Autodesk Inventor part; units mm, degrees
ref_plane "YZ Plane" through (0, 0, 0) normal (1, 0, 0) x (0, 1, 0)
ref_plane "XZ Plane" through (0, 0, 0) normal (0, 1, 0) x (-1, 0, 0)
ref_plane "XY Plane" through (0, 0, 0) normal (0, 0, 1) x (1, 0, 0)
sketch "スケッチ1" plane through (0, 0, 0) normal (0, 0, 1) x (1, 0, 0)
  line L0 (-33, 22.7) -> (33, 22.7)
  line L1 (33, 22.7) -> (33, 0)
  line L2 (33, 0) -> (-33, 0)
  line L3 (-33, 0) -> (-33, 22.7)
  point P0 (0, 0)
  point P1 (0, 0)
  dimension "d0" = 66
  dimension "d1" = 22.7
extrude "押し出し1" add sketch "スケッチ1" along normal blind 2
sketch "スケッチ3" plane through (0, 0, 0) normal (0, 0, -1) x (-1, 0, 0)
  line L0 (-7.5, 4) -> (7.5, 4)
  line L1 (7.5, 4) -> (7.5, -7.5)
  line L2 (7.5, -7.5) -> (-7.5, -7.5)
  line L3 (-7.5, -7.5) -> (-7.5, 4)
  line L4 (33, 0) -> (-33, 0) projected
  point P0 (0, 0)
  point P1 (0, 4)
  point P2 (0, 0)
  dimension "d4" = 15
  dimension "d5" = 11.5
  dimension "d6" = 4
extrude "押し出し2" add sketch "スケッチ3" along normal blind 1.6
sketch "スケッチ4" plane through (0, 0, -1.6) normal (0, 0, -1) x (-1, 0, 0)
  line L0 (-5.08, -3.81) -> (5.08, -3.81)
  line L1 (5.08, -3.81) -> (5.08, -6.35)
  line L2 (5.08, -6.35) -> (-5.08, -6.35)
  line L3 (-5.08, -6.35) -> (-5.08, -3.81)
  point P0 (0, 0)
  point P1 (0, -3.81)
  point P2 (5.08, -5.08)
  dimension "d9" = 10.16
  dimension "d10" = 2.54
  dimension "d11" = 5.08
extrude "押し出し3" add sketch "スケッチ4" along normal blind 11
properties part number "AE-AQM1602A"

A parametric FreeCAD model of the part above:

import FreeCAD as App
import Part
import Sketcher


def add_polygon(sketch, points):
    """Adds a closed chain of lines whose ends are joined by coincident constraints."""
    first, n = sketch.GeometryCount, len(points)
    for a, b in zip(points, points[1:] + points[:1]):
        sketch.addGeometry(Part.LineSegment(App.Vector(*a, 0), App.Vector(*b, 0)), False)
    for i in range(n):
        sketch.addConstraint(Sketcher.Constraint("Coincident", first + i, 2, first + (i + 1) % n, 1))

doc = App.newDocument("Part")
body = doc.addObject("PartDesign::Body", "Body")

# Sketch on XY plane
sketch1 = body.newObject("Sketcher::SketchObject", "Sketch")
sketch1.AttachmentSupport = (doc.getObject("XY_Plane"), [""])
sketch1.MapMode = "FlatFace"
add_polygon(sketch1, [(33, 23), (-33, 23), (-33, 0), (33, 0)])  # lines 0-3
sketch1.addConstraint([
    Sketcher.Constraint("Horizontal", 0),
    Sketcher.Constraint("Vertical", 1),
    Sketcher.Constraint("Horizontal", 2),
    Sketcher.Constraint("Vertical", 3),
    Sketcher.Constraint("Symmetric", 1, 2, 2, 2, -1, 1),
    Sketcher.Constraint("DistanceX", 0, 2, 0, 1, 66.0),
    Sketcher.Constraint("DistanceY", 1, 2, 1, 1, 22.7),
])
pad1 = body.newObject("PartDesign::Pad", "Pad")
pad1.Profile = sketch1
pad1.Length = 2

# Sketch on XY plane
sketch2 = body.newObject("Sketcher::SketchObject", "Sketch001")
sketch2.AttachmentSupport = (doc.getObject("XY_Plane"), [""])
sketch2.MapMode = "FlatFace"
add_polygon(sketch2, [(-8, 4), (8, 4), (8, -8), (-8, -8)])  # lines 0-3
sketch2.addConstraint([
    Sketcher.Constraint("Horizontal", 0),
    Sketcher.Constraint("Vertical", 1),
    Sketcher.Constraint("Horizontal", 2),
    Sketcher.Constraint("Vertical", 3),
    Sketcher.Constraint("DistanceX", 0, 1, 0, 2, 15.0),
    Sketcher.Constraint("DistanceY", 1, 2, 1, 1, 11.5),
    Sketcher.Constraint("DistanceY", -1, 1, 0, 2, 4.0),
    Sketcher.Constraint("DistanceX", -1, 1, 0, 2, 7.5),
])
pad2 = body.newObject("PartDesign::Pad", "Pad001")
pad2.Profile = sketch2
pad2.Length = 1.6
pad2.Reversed = True

# Sketch on XY plane
sketch3 = body.newObject("Sketcher::SketchObject", "Sketch002")
sketch3.AttachmentSupport = (doc.getObject("XY_Plane"), [""])
sketch3.MapMode = "FlatFace"
sketch3.AttachmentOffset = App.Placement(App.Vector(0, 0, -1.6), App.Rotation())
add_polygon(sketch3, [(-5.1, -3.8), (5.1, -3.8), (5.1, -6.3), (-5.1, -6.3)])  # lines 0-3
sketch3.addConstraint([
    Sketcher.Constraint("Horizontal", 0),
    Sketcher.Constraint("Vertical", 1),
    Sketcher.Constraint("Horizontal", 2),
    Sketcher.Constraint("Vertical", 3),
    Sketcher.Constraint("DistanceX", 0, 1, 0, 2, 10.16),
    Sketcher.Constraint("DistanceY", 1, 2, 1, 1, 2.54),
    Sketcher.Constraint("DistanceX", -1, 1, 0, 2, 5.08),
    Sketcher.Constraint("DistanceY", 0, 2, -1, 1, 3.81),
])
pad3 = body.newObject("PartDesign::Pad", "Pad002")
pad3.Profile = sketch3
pad3.Length = 11
pad3.Reversed = True

doc.recompute()
